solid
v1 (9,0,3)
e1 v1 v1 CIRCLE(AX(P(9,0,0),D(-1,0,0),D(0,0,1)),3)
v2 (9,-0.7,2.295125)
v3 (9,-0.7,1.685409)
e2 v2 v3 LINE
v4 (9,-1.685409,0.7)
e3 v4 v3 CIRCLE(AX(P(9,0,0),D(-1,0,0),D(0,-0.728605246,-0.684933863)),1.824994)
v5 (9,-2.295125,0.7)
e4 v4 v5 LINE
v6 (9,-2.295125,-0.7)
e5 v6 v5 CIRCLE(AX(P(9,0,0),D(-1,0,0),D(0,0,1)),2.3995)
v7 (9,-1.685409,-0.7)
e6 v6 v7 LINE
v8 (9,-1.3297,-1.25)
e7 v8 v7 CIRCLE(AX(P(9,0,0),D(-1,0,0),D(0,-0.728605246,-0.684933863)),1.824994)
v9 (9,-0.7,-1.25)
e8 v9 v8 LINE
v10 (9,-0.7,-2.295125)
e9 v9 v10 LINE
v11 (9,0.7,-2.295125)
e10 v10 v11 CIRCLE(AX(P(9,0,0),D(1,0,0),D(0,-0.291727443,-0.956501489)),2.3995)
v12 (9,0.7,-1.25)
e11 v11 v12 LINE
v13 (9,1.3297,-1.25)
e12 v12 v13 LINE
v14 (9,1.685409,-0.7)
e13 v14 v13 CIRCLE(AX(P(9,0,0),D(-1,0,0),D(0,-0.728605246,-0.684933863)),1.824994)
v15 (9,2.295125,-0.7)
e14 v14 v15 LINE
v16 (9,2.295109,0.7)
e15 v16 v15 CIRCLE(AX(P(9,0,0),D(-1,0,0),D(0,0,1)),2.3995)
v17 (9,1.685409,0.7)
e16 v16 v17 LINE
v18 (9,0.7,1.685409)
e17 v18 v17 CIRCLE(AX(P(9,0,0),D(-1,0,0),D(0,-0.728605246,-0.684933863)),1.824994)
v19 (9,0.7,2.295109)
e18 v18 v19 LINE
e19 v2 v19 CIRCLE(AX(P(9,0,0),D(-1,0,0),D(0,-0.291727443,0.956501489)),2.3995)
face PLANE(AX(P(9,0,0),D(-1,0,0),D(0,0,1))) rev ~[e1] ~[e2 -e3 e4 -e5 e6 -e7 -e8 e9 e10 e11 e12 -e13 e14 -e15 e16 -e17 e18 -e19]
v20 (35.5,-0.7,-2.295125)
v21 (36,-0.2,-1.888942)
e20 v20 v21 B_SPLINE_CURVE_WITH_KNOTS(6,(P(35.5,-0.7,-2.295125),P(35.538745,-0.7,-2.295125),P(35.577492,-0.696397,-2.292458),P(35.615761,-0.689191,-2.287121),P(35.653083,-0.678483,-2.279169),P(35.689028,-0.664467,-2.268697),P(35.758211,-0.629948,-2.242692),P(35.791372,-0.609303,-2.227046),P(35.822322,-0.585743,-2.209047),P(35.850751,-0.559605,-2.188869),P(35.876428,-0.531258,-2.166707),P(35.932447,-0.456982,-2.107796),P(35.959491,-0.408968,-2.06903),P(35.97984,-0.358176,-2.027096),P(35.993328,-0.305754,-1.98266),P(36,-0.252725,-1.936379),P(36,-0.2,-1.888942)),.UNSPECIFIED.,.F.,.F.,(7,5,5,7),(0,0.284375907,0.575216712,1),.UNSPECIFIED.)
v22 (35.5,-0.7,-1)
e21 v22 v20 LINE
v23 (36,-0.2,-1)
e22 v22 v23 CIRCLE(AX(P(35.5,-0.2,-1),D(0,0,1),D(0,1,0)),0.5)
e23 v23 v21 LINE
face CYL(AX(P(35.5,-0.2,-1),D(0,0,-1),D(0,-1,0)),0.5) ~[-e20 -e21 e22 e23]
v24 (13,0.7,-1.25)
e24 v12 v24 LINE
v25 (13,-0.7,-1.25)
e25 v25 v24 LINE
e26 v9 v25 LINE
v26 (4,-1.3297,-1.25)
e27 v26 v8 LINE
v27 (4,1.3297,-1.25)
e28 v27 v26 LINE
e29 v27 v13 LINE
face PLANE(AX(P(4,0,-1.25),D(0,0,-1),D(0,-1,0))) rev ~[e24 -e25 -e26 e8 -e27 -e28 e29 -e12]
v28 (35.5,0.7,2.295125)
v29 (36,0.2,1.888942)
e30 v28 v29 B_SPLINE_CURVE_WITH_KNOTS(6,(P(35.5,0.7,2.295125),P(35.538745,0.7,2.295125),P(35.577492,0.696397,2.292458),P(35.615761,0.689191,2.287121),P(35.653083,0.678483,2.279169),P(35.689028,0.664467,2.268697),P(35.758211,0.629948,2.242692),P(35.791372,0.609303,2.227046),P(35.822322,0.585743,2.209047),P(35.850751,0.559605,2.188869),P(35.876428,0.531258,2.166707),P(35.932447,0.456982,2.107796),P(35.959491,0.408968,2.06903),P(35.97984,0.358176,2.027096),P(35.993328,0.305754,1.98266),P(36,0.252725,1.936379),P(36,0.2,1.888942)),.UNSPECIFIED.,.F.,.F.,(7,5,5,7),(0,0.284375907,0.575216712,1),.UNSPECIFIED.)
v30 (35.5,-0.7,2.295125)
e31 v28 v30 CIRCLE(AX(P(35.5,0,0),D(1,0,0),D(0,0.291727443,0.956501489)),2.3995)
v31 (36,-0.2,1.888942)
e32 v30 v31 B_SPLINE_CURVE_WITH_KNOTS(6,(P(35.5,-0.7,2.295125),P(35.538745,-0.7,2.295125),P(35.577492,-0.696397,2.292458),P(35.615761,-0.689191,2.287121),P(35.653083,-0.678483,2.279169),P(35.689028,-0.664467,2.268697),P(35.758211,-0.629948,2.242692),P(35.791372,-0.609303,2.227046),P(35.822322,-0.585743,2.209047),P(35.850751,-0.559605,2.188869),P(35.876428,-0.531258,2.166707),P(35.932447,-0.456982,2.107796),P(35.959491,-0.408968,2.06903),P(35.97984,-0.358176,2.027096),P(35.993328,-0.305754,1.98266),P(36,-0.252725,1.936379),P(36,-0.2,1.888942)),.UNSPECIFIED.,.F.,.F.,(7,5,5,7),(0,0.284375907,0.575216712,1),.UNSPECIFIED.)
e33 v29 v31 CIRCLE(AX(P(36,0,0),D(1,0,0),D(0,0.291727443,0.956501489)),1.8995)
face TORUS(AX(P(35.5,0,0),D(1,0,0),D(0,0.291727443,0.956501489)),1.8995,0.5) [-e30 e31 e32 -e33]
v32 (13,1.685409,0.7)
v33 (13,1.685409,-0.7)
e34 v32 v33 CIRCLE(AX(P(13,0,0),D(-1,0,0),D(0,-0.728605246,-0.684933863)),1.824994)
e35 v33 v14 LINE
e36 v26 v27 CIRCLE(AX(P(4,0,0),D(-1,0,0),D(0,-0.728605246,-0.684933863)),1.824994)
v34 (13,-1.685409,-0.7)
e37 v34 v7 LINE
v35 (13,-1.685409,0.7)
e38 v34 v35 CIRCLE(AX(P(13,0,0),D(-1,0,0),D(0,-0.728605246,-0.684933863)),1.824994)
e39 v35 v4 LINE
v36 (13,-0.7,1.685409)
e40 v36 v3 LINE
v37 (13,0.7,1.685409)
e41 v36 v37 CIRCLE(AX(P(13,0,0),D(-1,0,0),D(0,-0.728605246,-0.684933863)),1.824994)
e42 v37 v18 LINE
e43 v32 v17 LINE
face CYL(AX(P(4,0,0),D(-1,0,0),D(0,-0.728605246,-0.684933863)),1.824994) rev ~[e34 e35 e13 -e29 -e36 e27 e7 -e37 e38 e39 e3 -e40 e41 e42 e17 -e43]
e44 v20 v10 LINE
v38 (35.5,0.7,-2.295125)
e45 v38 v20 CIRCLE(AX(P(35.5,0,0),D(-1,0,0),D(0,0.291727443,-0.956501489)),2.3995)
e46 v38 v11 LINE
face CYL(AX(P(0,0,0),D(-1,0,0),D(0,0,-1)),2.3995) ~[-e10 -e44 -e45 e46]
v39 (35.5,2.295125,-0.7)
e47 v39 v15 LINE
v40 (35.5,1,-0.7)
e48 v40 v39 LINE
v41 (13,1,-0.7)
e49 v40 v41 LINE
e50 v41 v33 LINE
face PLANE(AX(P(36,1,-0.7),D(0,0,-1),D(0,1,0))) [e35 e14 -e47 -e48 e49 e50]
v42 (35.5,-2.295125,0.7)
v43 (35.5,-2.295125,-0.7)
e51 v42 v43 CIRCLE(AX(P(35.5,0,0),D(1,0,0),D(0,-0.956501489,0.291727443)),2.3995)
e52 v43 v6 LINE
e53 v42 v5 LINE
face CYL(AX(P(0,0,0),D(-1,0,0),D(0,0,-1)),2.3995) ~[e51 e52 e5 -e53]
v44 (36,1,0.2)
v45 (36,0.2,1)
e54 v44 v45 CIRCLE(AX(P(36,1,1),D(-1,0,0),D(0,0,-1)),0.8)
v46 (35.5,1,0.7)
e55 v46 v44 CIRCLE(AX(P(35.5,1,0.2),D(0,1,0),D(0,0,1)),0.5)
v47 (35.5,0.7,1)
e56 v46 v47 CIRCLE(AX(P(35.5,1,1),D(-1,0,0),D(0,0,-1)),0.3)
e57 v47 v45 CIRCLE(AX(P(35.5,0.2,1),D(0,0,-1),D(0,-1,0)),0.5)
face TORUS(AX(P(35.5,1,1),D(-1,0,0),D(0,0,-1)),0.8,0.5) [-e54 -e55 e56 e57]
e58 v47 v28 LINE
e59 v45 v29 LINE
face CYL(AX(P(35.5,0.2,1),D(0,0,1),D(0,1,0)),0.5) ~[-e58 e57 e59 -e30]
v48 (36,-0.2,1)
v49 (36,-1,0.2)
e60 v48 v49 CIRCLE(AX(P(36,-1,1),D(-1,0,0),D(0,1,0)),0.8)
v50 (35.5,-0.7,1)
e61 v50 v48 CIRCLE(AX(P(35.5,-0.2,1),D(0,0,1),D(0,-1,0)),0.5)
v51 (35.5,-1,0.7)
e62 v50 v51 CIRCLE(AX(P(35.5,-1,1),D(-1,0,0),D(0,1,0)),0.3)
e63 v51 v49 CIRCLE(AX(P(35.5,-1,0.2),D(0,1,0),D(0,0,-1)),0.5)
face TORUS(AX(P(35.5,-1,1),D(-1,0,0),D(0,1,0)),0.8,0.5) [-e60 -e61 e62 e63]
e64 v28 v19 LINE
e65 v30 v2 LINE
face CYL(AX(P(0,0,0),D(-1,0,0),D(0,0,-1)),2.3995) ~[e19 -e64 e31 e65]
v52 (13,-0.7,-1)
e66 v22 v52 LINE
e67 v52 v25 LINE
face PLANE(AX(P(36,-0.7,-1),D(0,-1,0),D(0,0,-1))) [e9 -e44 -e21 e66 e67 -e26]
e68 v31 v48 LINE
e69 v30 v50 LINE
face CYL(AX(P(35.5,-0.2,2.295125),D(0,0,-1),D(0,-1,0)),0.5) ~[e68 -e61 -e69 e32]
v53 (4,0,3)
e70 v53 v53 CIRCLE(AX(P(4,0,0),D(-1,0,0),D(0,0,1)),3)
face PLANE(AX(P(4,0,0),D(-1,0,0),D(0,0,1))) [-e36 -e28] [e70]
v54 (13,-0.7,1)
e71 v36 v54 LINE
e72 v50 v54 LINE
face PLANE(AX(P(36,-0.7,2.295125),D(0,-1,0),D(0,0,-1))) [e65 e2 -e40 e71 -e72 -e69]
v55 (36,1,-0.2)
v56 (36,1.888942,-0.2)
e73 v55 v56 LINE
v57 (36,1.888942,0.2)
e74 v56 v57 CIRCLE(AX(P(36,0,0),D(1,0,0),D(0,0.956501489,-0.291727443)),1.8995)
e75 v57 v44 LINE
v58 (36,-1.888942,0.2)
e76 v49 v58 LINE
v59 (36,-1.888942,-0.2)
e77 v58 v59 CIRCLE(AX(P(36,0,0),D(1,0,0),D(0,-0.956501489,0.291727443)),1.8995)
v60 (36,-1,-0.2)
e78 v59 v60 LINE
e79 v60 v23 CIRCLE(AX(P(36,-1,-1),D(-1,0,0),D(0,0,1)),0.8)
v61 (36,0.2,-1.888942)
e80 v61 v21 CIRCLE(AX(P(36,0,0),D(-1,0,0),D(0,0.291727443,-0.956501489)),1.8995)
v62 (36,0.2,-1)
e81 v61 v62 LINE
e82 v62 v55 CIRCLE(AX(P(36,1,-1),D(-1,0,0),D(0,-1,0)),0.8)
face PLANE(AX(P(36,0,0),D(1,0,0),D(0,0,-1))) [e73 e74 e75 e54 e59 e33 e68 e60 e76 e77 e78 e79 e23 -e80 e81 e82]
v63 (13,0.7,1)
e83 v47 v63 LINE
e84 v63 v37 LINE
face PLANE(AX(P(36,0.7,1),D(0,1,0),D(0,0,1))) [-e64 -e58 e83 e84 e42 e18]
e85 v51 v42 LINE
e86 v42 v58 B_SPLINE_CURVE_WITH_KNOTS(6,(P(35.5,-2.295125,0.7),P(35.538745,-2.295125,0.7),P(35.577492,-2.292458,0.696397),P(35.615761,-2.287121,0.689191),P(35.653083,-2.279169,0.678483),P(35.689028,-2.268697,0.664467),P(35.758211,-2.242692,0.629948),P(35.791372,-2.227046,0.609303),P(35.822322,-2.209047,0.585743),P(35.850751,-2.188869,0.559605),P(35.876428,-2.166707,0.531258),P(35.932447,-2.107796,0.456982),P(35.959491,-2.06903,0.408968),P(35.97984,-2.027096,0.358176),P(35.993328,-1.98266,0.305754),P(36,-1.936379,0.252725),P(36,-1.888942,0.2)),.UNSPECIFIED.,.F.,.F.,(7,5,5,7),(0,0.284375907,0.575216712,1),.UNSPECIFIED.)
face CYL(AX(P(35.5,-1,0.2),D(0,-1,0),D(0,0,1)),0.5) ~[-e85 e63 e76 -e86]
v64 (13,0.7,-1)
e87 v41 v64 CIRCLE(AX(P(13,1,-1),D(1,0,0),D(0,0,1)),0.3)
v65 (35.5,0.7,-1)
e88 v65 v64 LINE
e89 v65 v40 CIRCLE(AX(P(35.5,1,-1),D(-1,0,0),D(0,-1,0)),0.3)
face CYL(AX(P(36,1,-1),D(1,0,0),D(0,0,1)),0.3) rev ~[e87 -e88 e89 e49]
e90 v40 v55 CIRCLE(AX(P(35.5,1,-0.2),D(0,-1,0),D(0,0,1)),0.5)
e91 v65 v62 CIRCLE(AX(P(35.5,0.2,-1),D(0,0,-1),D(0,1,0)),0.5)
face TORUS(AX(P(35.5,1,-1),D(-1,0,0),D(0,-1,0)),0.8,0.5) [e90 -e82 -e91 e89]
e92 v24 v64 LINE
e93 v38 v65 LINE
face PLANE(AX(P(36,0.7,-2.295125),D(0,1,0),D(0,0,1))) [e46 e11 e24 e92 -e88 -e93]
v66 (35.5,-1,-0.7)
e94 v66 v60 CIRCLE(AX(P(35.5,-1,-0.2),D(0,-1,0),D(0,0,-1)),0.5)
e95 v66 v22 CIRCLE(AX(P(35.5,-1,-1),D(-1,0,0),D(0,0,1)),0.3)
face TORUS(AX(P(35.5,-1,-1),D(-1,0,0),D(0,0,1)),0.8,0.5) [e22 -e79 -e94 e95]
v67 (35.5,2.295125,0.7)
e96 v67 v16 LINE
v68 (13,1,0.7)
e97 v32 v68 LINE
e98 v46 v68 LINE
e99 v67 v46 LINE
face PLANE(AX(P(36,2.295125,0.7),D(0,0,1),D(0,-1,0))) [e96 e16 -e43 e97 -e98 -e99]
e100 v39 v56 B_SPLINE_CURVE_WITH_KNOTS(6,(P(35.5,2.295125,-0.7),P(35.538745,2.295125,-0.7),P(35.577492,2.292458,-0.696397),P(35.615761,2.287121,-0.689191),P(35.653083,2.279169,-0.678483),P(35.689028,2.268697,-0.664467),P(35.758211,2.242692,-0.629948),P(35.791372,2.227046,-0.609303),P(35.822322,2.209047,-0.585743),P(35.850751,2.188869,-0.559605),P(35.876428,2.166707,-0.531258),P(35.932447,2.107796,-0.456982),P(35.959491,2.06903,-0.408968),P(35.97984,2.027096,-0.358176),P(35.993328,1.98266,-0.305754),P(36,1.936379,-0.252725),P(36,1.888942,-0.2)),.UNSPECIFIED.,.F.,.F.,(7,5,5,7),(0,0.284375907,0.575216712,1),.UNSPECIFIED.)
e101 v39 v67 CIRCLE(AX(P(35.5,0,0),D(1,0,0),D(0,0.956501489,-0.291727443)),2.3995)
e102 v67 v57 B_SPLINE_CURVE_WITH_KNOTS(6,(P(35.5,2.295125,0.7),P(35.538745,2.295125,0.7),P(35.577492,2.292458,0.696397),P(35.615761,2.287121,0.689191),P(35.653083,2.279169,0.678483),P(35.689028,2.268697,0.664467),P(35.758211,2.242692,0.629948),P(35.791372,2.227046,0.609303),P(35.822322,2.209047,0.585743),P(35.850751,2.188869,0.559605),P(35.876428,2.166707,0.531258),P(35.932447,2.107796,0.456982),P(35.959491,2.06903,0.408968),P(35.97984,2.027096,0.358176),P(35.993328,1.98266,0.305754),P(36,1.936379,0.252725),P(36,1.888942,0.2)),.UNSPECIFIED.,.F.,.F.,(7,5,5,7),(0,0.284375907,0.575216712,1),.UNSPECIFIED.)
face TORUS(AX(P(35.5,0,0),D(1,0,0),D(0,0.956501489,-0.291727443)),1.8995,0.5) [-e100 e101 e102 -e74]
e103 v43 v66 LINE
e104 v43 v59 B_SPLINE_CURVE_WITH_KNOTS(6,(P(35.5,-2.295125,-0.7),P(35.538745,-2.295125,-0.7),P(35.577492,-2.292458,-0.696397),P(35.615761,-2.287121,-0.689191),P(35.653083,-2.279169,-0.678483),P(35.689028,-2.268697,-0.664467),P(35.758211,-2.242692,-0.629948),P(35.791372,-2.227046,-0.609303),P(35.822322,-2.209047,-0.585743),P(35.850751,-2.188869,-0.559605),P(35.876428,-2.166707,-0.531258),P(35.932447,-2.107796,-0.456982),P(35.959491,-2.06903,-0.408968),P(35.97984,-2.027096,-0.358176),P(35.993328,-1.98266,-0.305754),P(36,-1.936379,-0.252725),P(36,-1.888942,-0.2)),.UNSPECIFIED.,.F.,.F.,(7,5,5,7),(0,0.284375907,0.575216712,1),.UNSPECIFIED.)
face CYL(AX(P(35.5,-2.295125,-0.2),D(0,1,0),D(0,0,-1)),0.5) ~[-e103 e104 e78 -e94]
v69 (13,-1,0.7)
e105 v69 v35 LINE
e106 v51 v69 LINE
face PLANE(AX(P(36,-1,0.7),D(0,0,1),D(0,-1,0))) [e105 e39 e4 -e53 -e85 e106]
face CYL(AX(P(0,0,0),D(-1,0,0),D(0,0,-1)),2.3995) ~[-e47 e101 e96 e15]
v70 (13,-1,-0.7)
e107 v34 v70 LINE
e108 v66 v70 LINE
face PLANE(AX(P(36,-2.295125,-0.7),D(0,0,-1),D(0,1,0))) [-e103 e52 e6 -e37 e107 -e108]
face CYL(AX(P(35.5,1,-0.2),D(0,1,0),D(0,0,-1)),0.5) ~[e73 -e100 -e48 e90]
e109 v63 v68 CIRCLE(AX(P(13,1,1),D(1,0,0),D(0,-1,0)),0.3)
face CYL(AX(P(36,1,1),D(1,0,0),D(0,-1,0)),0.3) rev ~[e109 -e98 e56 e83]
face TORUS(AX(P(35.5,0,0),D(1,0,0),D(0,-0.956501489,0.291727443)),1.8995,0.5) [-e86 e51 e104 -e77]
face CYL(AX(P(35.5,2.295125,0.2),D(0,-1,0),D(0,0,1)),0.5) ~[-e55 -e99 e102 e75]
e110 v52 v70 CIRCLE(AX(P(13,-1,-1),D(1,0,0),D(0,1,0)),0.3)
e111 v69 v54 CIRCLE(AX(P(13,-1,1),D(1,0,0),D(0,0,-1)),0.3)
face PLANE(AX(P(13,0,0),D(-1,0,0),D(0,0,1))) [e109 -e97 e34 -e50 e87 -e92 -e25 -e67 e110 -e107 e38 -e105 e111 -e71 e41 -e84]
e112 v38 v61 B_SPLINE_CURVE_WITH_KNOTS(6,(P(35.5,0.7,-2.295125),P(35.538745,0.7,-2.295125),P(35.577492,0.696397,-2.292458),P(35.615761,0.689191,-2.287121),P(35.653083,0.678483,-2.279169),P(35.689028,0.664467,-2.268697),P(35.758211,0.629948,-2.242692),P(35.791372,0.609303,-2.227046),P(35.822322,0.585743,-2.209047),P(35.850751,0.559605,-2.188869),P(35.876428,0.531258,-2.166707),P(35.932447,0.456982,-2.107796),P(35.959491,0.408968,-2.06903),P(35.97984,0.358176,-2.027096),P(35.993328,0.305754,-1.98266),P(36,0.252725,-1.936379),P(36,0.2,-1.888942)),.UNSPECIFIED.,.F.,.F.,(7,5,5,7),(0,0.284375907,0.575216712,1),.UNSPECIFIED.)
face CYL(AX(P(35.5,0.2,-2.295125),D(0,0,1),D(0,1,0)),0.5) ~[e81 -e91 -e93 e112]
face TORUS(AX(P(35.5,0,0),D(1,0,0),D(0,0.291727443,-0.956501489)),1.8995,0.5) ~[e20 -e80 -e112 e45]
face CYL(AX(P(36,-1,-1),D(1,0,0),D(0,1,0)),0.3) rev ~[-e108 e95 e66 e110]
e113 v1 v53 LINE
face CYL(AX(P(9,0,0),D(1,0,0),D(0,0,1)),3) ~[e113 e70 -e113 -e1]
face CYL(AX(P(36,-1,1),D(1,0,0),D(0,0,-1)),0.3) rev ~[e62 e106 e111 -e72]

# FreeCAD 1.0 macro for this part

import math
import FreeCAD as App
import Part
import Sketcher
from FreeCAD import Vector
Q = App.Units.Quantity


def edges_at(feature, points):
    """Names of the edges that pass closest to the given points."""
    edges = feature.Shape.Edges
    near = lambda p: min(range(len(edges)), key=lambda i: edges[i].distToShape(Part.Vertex(*p))[0])
    return sorted({f"Edge{near(p) + 1}" for p in points})

doc = App.newDocument("Part")
body = doc.addObject("PartDesign::Body", "Body")

sketch1 = body.newObject("Sketcher::SketchObject", "Sketch")
sketch1.AttachmentSupport = (doc.getObject("YZ_Plane"), [""])
sketch1.MapMode = "FlatFace"
sketch1.addGeometry(Part.Circle(Vector(0, 0, 0), Vector(0, 0, 1), 2.4), False)
sketch1.addConstraint(Sketcher.Constraint("Coincident", 0, 3, -1, 1))
sketch1.addConstraint(Sketcher.Constraint("Diameter", 0, Q("4.799 mm")))
pad1 = body.newObject("PartDesign::Pad", "Pad")
pad1.Profile = sketch1
pad1.Length = 36

sketch2 = body.newObject("Sketcher::SketchObject", "Sketch001")
sketch2.AttachmentSupport = (doc.getObject("YZ_Plane"), [""])
sketch2.MapMode = "FlatFace"
sketch2.AttachmentOffset = App.Placement(Vector(0, 0, 36), App.Rotation())
sketch2.addGeometry(Part.LineSegment(Vector(0.7, -1, 0), Vector(0.7, -2.3, 0)), False)
sketch2.addGeometry(Part.ArcOfCircle(Part.Circle(Vector(0, 0, 0), Vector(0, 0, 1), 2.4), math.radians(-73), math.radians(-17)), False)
sketch2.addGeometry(Part.LineSegment(Vector(2.3, -0.7, 0), Vector(1, -0.7, 0)), False)
sketch2.addGeometry(Part.ArcOfCircle(Part.Circle(Vector(1, -1, 0), Vector(0, 0, 1), 0.3), math.radians(90), math.radians(180)), False)
sketch2.addGeometry(Part.ArcOfCircle(Part.Circle(Vector(0, 0, 0), Vector(0, 0, 1), 2.4), math.radians(-163), math.radians(-107)), False)
sketch2.addGeometry(Part.LineSegment(Vector(-0.7, -2.3, 0), Vector(-0.7, -1, 0)), False)
sketch2.addGeometry(Part.ArcOfCircle(Part.Circle(Vector(-1, -1, 0), Vector(0, 0, 1), 0.3), math.radians(0), math.radians(90)), False)
sketch2.addGeometry(Part.LineSegment(Vector(-1, -0.7, 0), Vector(-2.3, -0.7, 0)), False)
sketch2.addGeometry(Part.LineSegment(Vector(1, 0.7, 0), Vector(2.3, 0.7, 0)), False)
sketch2.addGeometry(Part.ArcOfCircle(Part.Circle(Vector(0, 0, 0), Vector(0, 0, 1), 2.4), math.radians(17), math.radians(73)), False)
sketch2.addGeometry(Part.LineSegment(Vector(0.7, 2.3, 0), Vector(0.7, 1, 0)), False)
sketch2.addGeometry(Part.ArcOfCircle(Part.Circle(Vector(1, 1, 0), Vector(0, 0, 1), 0.3), math.radians(180), math.radians(270)), False)
sketch2.addGeometry(Part.ArcOfCircle(Part.Circle(Vector(0, 0, 0), Vector(0, 0, 1), 2.4), math.radians(107), math.radians(163)), False)
sketch2.addGeometry(Part.LineSegment(Vector(-2.3, 0.7, 0), Vector(-1, 0.7, 0)), False)
sketch2.addGeometry(Part.ArcOfCircle(Part.Circle(Vector(-1, 1, 0), Vector(0, 0, 1), 0.3), math.radians(-90), math.radians(0)), False)
sketch2.addGeometry(Part.LineSegment(Vector(-0.7, 1, 0), Vector(-0.7, 2.3, 0)), False)
sketch2.addConstraint(Sketcher.Constraint("Coincident", 0, 2, 1, 1))
sketch2.addConstraint(Sketcher.Constraint("Coincident", 1, 2, 2, 1))
sketch2.addConstraint(Sketcher.Constraint("Tangent", 2, 2, 3, 1))
sketch2.addConstraint(Sketcher.Constraint("Tangent", 3, 2, 0, 1))
sketch2.addConstraint(Sketcher.Constraint("Coincident", 4, 2, 5, 1))
sketch2.addConstraint(Sketcher.Constraint("Tangent", 5, 2, 6, 1))
sketch2.addConstraint(Sketcher.Constraint("Tangent", 6, 2, 7, 1))
sketch2.addConstraint(Sketcher.Constraint("Coincident", 7, 2, 4, 1))
sketch2.addConstraint(Sketcher.Constraint("Coincident", 8, 2, 9, 1))
sketch2.addConstraint(Sketcher.Constraint("Coincident", 9, 2, 10, 1))
sketch2.addConstraint(Sketcher.Constraint("Tangent", 10, 2, 11, 1))
sketch2.addConstraint(Sketcher.Constraint("Tangent", 11, 2, 8, 1))
sketch2.addConstraint(Sketcher.Constraint("Coincident", 12, 2, 13, 1))
sketch2.addConstraint(Sketcher.Constraint("Tangent", 13, 2, 14, 1))
sketch2.addConstraint(Sketcher.Constraint("Tangent", 14, 2, 15, 1))
sketch2.addConstraint(Sketcher.Constraint("Coincident", 15, 2, 12, 1))
sketch2.addConstraint(Sketcher.Constraint("Vertical", 0))
sketch2.addConstraint(Sketcher.Constraint("Horizontal", 2))
sketch2.addConstraint(Sketcher.Constraint("Vertical", 5))
sketch2.addConstraint(Sketcher.Constraint("Horizontal", 7))
sketch2.addConstraint(Sketcher.Constraint("Horizontal", 8))
sketch2.addConstraint(Sketcher.Constraint("Vertical", 10))
sketch2.addConstraint(Sketcher.Constraint("Horizontal", 13))
sketch2.addConstraint(Sketcher.Constraint("Vertical", 15))
sketch2.addConstraint(Sketcher.Constraint("Coincident", 1, 3, -1, 1))
sketch2.addConstraint(Sketcher.Constraint("Coincident", 4, 3, -1, 1))
sketch2.addConstraint(Sketcher.Constraint("Coincident", 9, 3, -1, 1))
sketch2.addConstraint(Sketcher.Constraint("Coincident", 12, 3, -1, 1))
sketch2.addConstraint(Sketcher.Constraint("Equal", 1, 4))
sketch2.addConstraint(Sketcher.Constraint("Equal", 3, 6))
sketch2.addConstraint(Sketcher.Constraint("Equal", 4, 9))
sketch2.addConstraint(Sketcher.Constraint("Equal", 6, 11))
sketch2.addConstraint(Sketcher.Constraint("Equal", 9, 12))
sketch2.addConstraint(Sketcher.Constraint("Equal", 11, 14))
sketch2.addConstraint(Sketcher.Constraint("Symmetric", 6, 3, 11, 3, -1, 1))
sketch2.addConstraint(Sketcher.Constraint("Symmetric", 3, 3, 14, 3, -1, 1))
sketch2.addConstraint(Sketcher.Constraint("Symmetric", 3, 3, 6, 3, -2))
sketch2.addConstraint(Sketcher.Constraint("Equal", 13, 0))
sketch2.addConstraint(Sketcher.Constraint("Radius", 3, Q("0.3 mm")))
sketch2.addConstraint(Sketcher.Constraint("Radius", 1, Q("2.3995 mm")))
sketch2.addConstraint(Sketcher.Constraint("DistanceX", 4, 2, 0, 2, Q("1.4 mm")))
pocket1 = body.newObject("PartDesign::Pocket", "Pocket")
pocket1.Profile = sketch2
pocket1.Length = 27

sketch3 = body.newObject("Sketcher::SketchObject", "Sketch002")
sketch3.AttachmentSupport = (doc.getObject("YZ_Plane"), [""])
sketch3.MapMode = "FlatFace"
sketch3.addGeometry(Part.Circle(Vector(0, 0, 0), Vector(0, 0, 1), 2.4), False)
sketch3.addConstraint(Sketcher.Constraint("Coincident", 0, 3, -1, 1))
sketch3.addConstraint(Sketcher.Constraint("Diameter", 0, Q("4.799 mm")))
pocket2 = body.newObject("PartDesign::Pocket", "Pocket001")
pocket2.Profile = sketch3
pocket2.Length = 9
pocket2.Reversed = True

sketch4 = body.newObject("Sketcher::SketchObject", "Sketch003")
sketch4.AttachmentSupport = (doc.getObject("YZ_Plane"), [""])
sketch4.MapMode = "FlatFace"
sketch4.AttachmentOffset = App.Placement(Vector(0, 0, 9), App.Rotation())
sketch4.addGeometry(Part.Circle(Vector(0, 0, 0), Vector(0, 0, 1), 3), False)
sketch4.addConstraint(Sketcher.Constraint("Coincident", 0, 3, -1, 1))
sketch4.addConstraint(Sketcher.Constraint("Diameter", 0, Q("6 mm")))
pad2 = body.newObject("PartDesign::Pad", "Pad001")
pad2.Profile = sketch4
pad2.Length = 5
pad2.Reversed = True

sketch5 = body.newObject("Sketcher::SketchObject", "Sketch004")
sketch5.AttachmentSupport = (doc.getObject("YZ_Plane"), [""])
sketch5.MapMode = "FlatFace"
sketch5.AttachmentOffset = App.Placement(Vector(0, 0, 4), App.Rotation())
sketch5.addGeometry(Part.LineSegment(Vector(1.3, -1.2, 0), Vector(-1.3, -1.2, 0)), False)
sketch5.addGeometry(Part.ArcOfCircle(Part.Circle(Vector(0, 0, 0), Vector(0, 0, 1), 1.8), math.radians(-43), math.radians(223)), False)
sketch5.addConstraint(Sketcher.Constraint("Coincident", 0, 1, 1, 1))
sketch5.addConstraint(Sketcher.Constraint("Coincident", 1, 2, 0, 2))
sketch5.addConstraint(Sketcher.Constraint("Horizontal", 0))
sketch5.addConstraint(Sketcher.Constraint("Coincident", 1, 3, -1, 1))
sketch5.addConstraint(Sketcher.Constraint("Radius", 1, Q("1.825 mm")))
sketch5.addConstraint(Sketcher.Constraint("DistanceY", 0, 1, -1, 1, Q("1.25 mm")))
pocket3 = body.newObject("PartDesign::Pocket", "Pocket002")
pocket3.Profile = sketch5
pocket3.Length = 9
pocket3.Reversed = True
doc.recompute()

fillet = body.newObject("PartDesign::Fillet", "Fillet")
fillet.Base = (pocket3, edges_at(pocket3, [
    (36, 2.4, 0),
    (36, 0.7, -1.648),
    (36, 0.788, -0.788),
    (36, 1.648, -0.7),
    (36, 1.648, 0.7),
    (36, 0.788, 0.788),
    (36, 0.7, 1.648),
    (36, 0, 2.4),
    (36, -0.7, 1.648),
    (36, -0.788, 0.788),
    (36, -1.648, 0.7),
    (36, -2.4, 0),
    (36, -1.648, -0.7),
    (36, -0.788, -0.788),
    (36, -0.7, -1.648),
    (36, 0, -2.4),
]))
fillet.Radius = 0.5

doc.recompute()
